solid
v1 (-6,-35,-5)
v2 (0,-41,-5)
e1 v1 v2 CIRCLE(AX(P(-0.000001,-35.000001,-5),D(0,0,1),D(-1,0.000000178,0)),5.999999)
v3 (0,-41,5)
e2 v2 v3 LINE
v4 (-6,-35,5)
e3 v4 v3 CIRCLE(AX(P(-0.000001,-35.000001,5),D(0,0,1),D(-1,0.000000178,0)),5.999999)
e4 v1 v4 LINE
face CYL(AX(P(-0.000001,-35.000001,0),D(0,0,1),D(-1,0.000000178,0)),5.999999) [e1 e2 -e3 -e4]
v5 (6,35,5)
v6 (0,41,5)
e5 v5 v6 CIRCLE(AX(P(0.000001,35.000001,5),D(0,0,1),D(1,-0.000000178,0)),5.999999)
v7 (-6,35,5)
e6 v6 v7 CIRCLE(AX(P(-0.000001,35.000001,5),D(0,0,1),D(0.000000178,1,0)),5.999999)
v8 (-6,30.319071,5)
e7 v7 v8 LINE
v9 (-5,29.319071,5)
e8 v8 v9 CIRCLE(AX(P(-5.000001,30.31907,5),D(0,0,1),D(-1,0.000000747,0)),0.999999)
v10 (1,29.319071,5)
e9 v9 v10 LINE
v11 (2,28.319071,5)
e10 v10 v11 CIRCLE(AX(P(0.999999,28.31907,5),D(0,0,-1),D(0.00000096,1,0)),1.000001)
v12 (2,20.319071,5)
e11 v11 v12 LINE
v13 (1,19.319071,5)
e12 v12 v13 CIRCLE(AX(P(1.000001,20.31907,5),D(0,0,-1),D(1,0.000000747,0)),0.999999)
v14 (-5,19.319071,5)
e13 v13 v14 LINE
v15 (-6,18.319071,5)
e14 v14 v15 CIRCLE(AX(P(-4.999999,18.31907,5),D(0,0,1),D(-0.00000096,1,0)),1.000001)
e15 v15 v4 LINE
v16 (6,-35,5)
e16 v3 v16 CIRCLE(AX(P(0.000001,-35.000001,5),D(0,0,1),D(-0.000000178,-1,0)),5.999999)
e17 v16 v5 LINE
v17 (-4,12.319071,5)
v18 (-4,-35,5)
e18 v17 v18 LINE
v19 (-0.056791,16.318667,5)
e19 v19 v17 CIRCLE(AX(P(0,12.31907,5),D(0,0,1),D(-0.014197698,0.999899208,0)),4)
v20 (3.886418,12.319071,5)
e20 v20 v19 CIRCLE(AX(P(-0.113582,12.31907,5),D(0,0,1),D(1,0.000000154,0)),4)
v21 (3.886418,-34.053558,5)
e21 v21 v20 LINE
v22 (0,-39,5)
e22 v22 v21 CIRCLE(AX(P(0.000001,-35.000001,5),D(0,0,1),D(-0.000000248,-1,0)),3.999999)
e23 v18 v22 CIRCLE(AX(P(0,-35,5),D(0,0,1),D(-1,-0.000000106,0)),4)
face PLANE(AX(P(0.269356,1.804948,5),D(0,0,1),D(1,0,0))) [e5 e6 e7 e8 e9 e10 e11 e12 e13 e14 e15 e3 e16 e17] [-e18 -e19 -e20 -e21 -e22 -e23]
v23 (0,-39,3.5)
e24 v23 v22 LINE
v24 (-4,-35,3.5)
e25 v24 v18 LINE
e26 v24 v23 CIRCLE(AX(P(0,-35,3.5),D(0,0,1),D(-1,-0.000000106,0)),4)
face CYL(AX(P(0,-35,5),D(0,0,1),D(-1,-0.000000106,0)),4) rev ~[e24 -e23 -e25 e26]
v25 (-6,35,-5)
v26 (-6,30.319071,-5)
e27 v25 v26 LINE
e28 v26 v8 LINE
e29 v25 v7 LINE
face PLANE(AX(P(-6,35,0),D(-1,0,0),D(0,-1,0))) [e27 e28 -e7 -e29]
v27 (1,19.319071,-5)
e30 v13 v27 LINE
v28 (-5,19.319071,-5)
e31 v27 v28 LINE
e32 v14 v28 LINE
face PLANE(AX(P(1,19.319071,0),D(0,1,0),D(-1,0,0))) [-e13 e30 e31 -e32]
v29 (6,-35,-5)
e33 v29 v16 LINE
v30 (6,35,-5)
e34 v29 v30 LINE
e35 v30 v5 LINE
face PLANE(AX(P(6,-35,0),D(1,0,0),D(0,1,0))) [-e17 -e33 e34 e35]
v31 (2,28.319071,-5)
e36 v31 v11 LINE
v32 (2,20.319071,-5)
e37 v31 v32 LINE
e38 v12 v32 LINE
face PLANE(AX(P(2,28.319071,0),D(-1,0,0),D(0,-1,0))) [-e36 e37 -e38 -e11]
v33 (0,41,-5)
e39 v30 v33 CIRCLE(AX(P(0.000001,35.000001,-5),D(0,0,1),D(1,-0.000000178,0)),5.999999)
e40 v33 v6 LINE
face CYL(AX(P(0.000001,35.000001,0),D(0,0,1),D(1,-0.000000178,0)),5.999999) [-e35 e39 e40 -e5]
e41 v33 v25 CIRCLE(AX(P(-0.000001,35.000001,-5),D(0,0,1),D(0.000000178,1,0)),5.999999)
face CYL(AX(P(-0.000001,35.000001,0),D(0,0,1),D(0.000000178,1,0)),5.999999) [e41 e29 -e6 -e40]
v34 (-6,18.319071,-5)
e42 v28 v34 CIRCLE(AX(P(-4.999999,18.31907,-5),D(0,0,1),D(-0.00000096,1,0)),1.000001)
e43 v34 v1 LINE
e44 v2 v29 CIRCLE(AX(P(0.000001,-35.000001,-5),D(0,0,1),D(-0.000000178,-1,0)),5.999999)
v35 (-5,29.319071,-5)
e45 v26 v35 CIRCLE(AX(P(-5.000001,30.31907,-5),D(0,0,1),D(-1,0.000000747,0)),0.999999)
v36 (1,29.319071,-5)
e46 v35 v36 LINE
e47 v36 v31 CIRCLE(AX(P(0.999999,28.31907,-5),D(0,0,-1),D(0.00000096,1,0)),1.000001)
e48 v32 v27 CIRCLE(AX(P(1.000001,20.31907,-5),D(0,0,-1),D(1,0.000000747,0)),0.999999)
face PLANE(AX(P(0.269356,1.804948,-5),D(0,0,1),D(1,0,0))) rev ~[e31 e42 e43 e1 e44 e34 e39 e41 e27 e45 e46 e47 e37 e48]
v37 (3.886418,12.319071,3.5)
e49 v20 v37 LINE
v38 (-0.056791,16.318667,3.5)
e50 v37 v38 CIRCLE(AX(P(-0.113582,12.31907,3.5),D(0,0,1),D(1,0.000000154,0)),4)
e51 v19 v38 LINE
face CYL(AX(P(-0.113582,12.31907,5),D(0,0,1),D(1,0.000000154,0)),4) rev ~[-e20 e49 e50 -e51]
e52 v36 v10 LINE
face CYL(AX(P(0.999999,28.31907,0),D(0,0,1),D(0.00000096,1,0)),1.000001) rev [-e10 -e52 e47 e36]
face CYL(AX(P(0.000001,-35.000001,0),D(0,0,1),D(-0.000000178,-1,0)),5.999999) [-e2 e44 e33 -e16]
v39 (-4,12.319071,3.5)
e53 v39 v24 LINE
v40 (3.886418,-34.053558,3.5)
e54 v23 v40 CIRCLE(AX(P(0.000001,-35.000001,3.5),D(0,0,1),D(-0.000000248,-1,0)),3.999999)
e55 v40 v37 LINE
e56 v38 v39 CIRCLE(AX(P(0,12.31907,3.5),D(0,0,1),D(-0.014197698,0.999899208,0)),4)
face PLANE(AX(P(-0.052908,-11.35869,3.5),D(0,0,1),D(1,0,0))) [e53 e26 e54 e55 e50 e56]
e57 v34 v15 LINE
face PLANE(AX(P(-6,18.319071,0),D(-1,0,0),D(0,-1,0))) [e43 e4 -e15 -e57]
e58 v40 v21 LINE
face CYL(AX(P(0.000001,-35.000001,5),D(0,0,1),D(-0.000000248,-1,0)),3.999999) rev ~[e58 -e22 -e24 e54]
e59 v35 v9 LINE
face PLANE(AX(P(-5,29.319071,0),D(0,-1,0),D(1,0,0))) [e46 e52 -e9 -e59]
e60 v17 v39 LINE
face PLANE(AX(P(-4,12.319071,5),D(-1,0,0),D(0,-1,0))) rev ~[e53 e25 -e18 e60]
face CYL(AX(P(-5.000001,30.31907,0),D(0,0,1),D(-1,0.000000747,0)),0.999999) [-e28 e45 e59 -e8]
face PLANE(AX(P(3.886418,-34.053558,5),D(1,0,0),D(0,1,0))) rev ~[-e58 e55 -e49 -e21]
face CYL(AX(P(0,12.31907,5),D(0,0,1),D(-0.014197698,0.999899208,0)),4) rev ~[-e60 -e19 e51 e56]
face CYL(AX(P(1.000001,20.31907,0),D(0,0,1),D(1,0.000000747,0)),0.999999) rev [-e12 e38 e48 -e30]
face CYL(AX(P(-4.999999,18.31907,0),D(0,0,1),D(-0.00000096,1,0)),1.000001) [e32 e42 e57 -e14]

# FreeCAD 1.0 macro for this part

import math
import FreeCAD as App
import Part
import Sketcher
from FreeCAD import Vector
Q = App.Units.Quantity

doc = App.newDocument("Part")
params = doc.addObject("Spreadsheet::Sheet", "Params")
for row, (alias, value) in enumerate([
    ("sketch1_radius", "1.000001 mm"),
    ("sketch1_radius2", "5.999999 mm"),
    ("sketch1_width", "6 mm"),
    ("sketch1_height", "70 mm"),
    ("sketch1_height2", "8 mm"),
    ("pad1_length", "10 mm"),
    ("sketch2_radius", "4 mm"),
    ("pocket1_length", "3 mm"),
], start=1):
    params.set(f"A{row}", alias)
    params.set(f"B{row}", "=" + value)
    params.setAlias(f"B{row}", alias)

body = doc.addObject("PartDesign::Body", "Body")

sketch1 = doc.addObject("Sketcher::SketchObject", "Sketch")
body.addObject(sketch1)
sketch1.AttachmentSupport = (doc.XY_Plane, [""])
sketch1.MapMode = "FlatFace"
sketch1.addGeometry([
    Part.ArcOfCircle(Part.Circle(Vector(-5, 18.3, 0), Vector(0, 0, 1), 1), math.radians(90), math.radians(180)),
    Part.LineSegment(Vector(-6, 18.3, 0), Vector(-6, -35, 0)),
    Part.ArcOfCircle(Part.Circle(Vector(0, -35, 0), Vector(0, 0, 1), 6), math.radians(180), math.radians(270)),
    Part.ArcOfCircle(Part.Circle(Vector(0, -35, 0), Vector(0, 0, 1), 6), math.radians(-90), math.radians(0)),
    Part.LineSegment(Vector(6, -35, 0), Vector(6, 35, 0)),
    Part.ArcOfCircle(Part.Circle(Vector(0, 35, 0), Vector(0, 0, 1), 6), math.radians(0), math.radians(90)),
    Part.ArcOfCircle(Part.Circle(Vector(0, 35, 0), Vector(0, 0, 1), 6), math.radians(90), math.radians(180)),
    Part.LineSegment(Vector(-6, 35, 0), Vector(-6, 30.3, 0)),
    Part.ArcOfCircle(Part.Circle(Vector(-5, 30.3, 0), Vector(0, 0, 1), 1), math.radians(180), math.radians(270)),
    Part.LineSegment(Vector(-5, 29.3, 0), Vector(1, 29.3, 0)),
    Part.ArcOfCircle(Part.Circle(Vector(1, 28.3, 0), Vector(0, 0, 1), 1), math.radians(0), math.radians(90)),
    Part.LineSegment(Vector(2, 28.3, 0), Vector(2, 20.3, 0)),
    Part.ArcOfCircle(Part.Circle(Vector(1, 20.3, 0), Vector(0, 0, 1), 1), math.radians(-90), math.radians(0)),
    Part.LineSegment(Vector(1, 19.3, 0), Vector(-5, 19.3, 0)),
], False)
sketch1.addConstraint([
    Sketcher.Constraint("Tangent", 0, 2, 1, 1),
    Sketcher.Constraint("Tangent", 1, 2, 2, 1),
    Sketcher.Constraint("Tangent", 2, 2, 3, 1),
    Sketcher.Constraint("Tangent", 3, 2, 4, 1),
    Sketcher.Constraint("Tangent", 4, 2, 5, 1),
    Sketcher.Constraint("Tangent", 5, 2, 6, 1),
    Sketcher.Constraint("Tangent", 6, 2, 7, 1),
    Sketcher.Constraint("Tangent", 7, 2, 8, 1),
    Sketcher.Constraint("Tangent", 8, 2, 9, 1),
    Sketcher.Constraint("Tangent", 9, 2, 10, 2),
    Sketcher.Constraint("Tangent", 10, 1, 11, 1),
    Sketcher.Constraint("Tangent", 11, 2, 12, 2),
    Sketcher.Constraint("Tangent", 12, 1, 13, 1),
    Sketcher.Constraint("Tangent", 13, 2, 0, 1),
    Sketcher.Constraint("Vertical", 1),
    Sketcher.Constraint("Vertical", 4),
    Sketcher.Constraint("Vertical", 7),
    Sketcher.Constraint("Horizontal", 9),
    Sketcher.Constraint("Vertical", 11),
    Sketcher.Constraint("Horizontal", 13),
    Sketcher.Constraint("Equal", 2, 3),
    Sketcher.Constraint("Equal", 3, 5),
    Sketcher.Constraint("Equal", 5, 6),
    Sketcher.Constraint("Equal", 0, 8),
    Sketcher.Constraint("Equal", 8, 10),
    Sketcher.Constraint("Equal", 10, 12),
    Sketcher.Constraint("Symmetric", 2, 3, 5, 3, -1, 1),
    Sketcher.Constraint("PointOnObject", 2, 2, -2),
    Sketcher.Constraint("PointOnObject", 5, 2, -2),
    Sketcher.Constraint("Radius", 0, Q("1.000001 mm")),
    Sketcher.Constraint("Radius", 2, Q("5.999999 mm")),
    Sketcher.Constraint("DistanceX", 9, 1, 9, 2, Q("6 mm")),
    Sketcher.Constraint("DistanceY", 4, 1, 4, 2, Q("70 mm")),
    Sketcher.Constraint("DistanceY", 11, 2, 11, 1, Q("8 mm")),
    Sketcher.Constraint("DistanceY", 1, 2, 1, 1, Q("53.319071 mm")),
])
sketch1.setExpression("Constraints[29]", "Params.sketch1_radius")
sketch1.setExpression("Constraints[30]", "Params.sketch1_radius2")
sketch1.setExpression("Constraints[31]", "Params.sketch1_width")
sketch1.setExpression("Constraints[32]", "Params.sketch1_height")
sketch1.setExpression("Constraints[33]", "Params.sketch1_height2")
pad1 = doc.addObject("PartDesign::Pad", "Pad")
body.addObject(pad1)
pad1.Profile = sketch1
pad1.setExpression("Length", "Params.pad1_length")
pad1.Midplane = True

sketch2 = doc.addObject("Sketcher::SketchObject", "Sketch001")
body.addObject(sketch2)
sketch2.AttachmentSupport = (doc.XY_Plane, [""])
sketch2.MapMode = "FlatFace"
sketch2.AttachmentOffset = App.Placement(Vector(0, 0, 5), App.Rotation())
sketch2.addGeometry([
    Part.LineSegment(Vector(-4, 12.3, 0), Vector(-4, -35, 0)),
    Part.ArcOfCircle(Part.Circle(Vector(0, -35, 0), Vector(0, 0, 1), 4), math.radians(-180), math.radians(-90)),
    Part.ArcOfCircle(Part.Circle(Vector(0, -35, 0), Vector(0, 0, 1), 4), math.radians(-90), math.radians(14)),
    Part.LineSegment(Vector(3.9, -34.1, 0), Vector(3.9, 12.3, 0)),
    Part.ArcOfCircle(Part.Circle(Vector(-0.1, 12.3, 0), Vector(0, 0, 1), 4), math.radians(0), math.radians(89)),
    Part.ArcOfCircle(Part.Circle(Vector(0, 12.3, 0), Vector(0, 0, 1), 4), math.radians(91), math.radians(180)),
], False)
sketch2.addConstraint([
    Sketcher.Constraint("Tangent", 0, 2, 1, 1),
    Sketcher.Constraint("Tangent", 1, 2, 2, 1),
    Sketcher.Constraint("Coincident", 2, 2, 3, 1),
    Sketcher.Constraint("Tangent", 3, 2, 4, 1),
    Sketcher.Constraint("Coincident", 4, 2, 5, 1),
    Sketcher.Constraint("Tangent", 5, 2, 0, 1),
    Sketcher.Constraint("Vertical", 0),
    Sketcher.Constraint("Vertical", 3),
    Sketcher.Constraint("Equal", 1, 2),
    Sketcher.Constraint("Equal", 2, 4),
    Sketcher.Constraint("Equal", 4, 5),
    Sketcher.Constraint("PointOnObject", 1, 3, -2),
    Sketcher.Constraint("PointOnObject", 1, 2, -2),
    Sketcher.Constraint("Horizontal", 4, 3, 5, 3),
    Sketcher.Constraint("Radius", 1, Q("4 mm")),
    Sketcher.Constraint("DistanceY", 1, 3, -1, 1, Q("35 mm")),
    Sketcher.Constraint("DistanceY", 0, 2, 0, 1, Q("47.319071 mm")),
    Sketcher.Constraint("DistanceY", 3, 1, 3, 2, Q("46.372629 mm")),
])
sketch2.setExpression("Constraints[14]", "Params.sketch2_radius")
pocket1 = doc.addObject("PartDesign::Pocket", "Pocket")
body.addObject(pocket1)
pocket1.Profile = sketch2
pocket1.setExpression("Length", "Params.pocket1_length")
pocket1.Midplane = True

doc.recompute()
